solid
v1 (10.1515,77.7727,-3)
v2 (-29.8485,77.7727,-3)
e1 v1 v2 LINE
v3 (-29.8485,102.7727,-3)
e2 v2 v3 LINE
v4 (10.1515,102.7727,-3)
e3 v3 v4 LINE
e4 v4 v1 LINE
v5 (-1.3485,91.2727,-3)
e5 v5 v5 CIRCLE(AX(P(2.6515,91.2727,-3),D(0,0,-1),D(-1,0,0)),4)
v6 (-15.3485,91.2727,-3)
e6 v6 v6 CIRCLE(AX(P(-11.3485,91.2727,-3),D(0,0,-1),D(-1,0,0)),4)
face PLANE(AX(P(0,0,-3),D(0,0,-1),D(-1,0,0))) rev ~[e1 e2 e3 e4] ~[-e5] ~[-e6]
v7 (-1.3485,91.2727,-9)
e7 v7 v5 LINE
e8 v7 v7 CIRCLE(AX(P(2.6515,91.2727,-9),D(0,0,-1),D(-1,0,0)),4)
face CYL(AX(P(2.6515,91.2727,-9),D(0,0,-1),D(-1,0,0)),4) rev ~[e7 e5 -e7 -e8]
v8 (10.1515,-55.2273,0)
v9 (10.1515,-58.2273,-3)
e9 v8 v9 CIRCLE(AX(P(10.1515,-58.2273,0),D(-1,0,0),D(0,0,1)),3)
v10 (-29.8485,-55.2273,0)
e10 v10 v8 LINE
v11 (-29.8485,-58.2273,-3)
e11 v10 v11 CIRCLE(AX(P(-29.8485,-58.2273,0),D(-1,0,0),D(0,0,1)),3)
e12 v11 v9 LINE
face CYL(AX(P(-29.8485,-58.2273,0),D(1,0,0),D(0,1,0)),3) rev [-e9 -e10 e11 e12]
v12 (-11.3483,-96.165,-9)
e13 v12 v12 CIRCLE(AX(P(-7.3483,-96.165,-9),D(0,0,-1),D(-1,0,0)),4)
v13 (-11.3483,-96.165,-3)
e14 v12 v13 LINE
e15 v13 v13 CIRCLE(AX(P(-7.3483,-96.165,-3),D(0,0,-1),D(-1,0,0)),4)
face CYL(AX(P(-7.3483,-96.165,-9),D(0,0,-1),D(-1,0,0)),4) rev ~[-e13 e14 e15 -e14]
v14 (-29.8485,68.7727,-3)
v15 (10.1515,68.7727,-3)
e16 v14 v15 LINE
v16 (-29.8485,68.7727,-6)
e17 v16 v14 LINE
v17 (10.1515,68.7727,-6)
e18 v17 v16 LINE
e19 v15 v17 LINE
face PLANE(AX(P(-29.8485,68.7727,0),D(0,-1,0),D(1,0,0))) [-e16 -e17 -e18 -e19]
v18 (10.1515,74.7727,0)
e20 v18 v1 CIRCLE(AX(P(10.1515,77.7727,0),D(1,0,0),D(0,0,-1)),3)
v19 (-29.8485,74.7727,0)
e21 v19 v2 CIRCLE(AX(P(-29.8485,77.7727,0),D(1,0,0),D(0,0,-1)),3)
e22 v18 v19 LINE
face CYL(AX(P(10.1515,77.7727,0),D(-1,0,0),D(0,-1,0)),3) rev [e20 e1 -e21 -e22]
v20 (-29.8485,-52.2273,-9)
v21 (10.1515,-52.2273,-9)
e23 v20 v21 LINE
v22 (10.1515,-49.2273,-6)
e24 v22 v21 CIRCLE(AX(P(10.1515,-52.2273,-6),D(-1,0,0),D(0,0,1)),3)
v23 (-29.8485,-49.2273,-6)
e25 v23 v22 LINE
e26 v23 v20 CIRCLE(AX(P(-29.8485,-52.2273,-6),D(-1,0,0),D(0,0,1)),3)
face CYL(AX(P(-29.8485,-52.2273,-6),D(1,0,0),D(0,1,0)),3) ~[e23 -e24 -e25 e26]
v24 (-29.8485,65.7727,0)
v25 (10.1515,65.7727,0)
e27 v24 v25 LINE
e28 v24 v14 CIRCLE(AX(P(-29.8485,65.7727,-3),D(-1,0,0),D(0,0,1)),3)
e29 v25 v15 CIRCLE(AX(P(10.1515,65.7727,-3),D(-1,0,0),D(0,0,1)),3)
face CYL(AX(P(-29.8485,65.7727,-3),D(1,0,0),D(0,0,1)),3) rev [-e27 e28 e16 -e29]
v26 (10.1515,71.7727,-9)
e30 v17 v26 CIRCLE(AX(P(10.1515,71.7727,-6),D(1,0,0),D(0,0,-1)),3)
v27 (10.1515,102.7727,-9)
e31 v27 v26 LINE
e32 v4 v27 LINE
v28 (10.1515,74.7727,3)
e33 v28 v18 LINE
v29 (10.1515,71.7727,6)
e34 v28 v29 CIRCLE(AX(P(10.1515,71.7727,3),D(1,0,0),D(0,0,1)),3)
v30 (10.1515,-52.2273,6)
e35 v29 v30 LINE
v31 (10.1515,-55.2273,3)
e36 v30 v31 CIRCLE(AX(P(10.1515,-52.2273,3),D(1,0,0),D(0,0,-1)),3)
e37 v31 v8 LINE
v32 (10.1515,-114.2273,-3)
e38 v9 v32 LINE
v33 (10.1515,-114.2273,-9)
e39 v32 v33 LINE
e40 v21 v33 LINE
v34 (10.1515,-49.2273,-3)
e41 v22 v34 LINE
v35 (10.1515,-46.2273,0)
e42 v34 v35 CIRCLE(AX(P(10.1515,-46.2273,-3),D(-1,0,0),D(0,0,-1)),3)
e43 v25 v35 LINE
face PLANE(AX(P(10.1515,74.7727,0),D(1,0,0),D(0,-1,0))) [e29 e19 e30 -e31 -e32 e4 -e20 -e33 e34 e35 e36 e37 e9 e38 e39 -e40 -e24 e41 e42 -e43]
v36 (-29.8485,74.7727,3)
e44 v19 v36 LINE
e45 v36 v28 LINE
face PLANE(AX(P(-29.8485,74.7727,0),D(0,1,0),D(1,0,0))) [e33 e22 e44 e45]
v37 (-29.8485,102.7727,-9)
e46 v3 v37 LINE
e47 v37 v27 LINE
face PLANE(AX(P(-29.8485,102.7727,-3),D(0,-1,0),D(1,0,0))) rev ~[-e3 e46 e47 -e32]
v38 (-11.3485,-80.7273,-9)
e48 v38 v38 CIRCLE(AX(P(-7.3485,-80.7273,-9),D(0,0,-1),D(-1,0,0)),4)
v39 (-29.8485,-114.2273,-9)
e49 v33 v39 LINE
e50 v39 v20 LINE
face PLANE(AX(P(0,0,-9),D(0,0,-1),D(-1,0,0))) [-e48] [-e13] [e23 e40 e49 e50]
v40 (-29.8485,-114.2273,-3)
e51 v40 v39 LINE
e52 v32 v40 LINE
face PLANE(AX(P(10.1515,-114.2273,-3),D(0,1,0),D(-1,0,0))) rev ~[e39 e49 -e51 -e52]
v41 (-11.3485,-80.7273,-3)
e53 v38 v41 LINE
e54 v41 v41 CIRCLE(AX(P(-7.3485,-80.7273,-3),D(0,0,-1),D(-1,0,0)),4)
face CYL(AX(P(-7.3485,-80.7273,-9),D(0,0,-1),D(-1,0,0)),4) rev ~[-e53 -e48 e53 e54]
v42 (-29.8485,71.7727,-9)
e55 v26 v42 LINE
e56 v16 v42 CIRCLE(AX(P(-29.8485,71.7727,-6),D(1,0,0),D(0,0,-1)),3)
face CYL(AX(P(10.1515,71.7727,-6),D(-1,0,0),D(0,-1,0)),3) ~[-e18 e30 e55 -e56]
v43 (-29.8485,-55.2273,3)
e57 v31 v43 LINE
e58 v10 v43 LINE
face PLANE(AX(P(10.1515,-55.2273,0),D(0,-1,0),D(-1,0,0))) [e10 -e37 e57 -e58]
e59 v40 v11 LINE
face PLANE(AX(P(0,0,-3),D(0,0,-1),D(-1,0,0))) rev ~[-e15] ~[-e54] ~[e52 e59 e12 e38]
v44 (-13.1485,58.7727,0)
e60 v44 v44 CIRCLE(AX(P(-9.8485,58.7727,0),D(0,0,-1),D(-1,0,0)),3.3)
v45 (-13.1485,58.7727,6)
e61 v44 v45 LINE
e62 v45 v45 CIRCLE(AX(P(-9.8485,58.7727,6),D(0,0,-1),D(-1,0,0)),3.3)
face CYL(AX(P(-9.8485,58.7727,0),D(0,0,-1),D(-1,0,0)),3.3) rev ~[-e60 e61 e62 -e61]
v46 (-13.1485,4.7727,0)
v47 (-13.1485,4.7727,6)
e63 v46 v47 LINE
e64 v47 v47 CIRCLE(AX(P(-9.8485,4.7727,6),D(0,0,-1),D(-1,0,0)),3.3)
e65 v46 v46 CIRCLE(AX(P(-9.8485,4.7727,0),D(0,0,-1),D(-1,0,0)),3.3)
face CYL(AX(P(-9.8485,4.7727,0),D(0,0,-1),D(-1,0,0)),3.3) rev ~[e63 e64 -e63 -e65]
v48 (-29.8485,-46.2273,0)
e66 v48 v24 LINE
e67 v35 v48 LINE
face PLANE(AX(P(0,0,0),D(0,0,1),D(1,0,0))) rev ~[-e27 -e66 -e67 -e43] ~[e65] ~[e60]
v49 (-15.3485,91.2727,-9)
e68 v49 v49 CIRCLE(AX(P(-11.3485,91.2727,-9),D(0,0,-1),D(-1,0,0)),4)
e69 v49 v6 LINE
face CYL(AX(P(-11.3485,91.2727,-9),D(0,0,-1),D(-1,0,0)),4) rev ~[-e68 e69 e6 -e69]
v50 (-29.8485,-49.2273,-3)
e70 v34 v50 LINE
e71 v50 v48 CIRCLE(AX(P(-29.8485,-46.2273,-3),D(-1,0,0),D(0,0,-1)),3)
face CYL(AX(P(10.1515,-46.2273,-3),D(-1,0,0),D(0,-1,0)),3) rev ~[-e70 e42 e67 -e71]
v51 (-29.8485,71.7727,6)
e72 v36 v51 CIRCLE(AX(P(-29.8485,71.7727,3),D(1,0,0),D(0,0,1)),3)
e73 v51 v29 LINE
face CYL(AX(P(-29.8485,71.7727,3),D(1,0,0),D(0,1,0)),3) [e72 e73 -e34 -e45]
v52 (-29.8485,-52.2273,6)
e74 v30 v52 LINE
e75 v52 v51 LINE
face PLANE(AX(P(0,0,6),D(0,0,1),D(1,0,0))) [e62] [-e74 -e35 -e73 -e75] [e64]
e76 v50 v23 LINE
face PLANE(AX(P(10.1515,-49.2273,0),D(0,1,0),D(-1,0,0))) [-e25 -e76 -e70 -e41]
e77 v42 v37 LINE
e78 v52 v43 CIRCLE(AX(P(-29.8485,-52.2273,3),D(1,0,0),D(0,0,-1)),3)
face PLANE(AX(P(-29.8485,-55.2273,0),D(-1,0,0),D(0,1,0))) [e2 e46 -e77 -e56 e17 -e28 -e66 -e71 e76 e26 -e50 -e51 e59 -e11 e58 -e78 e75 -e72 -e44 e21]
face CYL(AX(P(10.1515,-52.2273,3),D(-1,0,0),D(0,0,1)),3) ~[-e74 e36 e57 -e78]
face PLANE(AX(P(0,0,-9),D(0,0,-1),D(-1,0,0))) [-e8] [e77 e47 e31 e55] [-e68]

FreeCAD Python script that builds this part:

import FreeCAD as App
import Part
import Sketcher
from FreeCAD import Vector
Q = App.Units.Quantity


def edges_at(feature, points):
    """Names of the edges that pass closest to the given points."""
    edges = feature.Shape.Edges
    near = lambda p: min(range(len(edges)), key=lambda i: edges[i].distToShape(Part.Vertex(*p))[0])
    return sorted({f"Edge{near(p) + 1}" for p in points})

doc = App.newDocument("Part")
body = doc.addObject("PartDesign::Body", "Body")

# Sketch on XY plane
sketch1 = body.newObject("Sketcher::SketchObject", "Sketch")
sketch1.AttachmentSupport = (doc.getObject("XY_Plane"), [""])
sketch1.MapMode = "FlatFace"
sketch1.addGeometry(Part.LineSegment(Vector(10, 75, 0), Vector(-30, 75, 0)), False)
sketch1.addGeometry(Part.LineSegment(Vector(-30, 75, 0), Vector(-30, -55, 0)), False)
sketch1.addGeometry(Part.LineSegment(Vector(-30, -55, 0), Vector(10, -55, 0)), False)
sketch1.addGeometry(Part.LineSegment(Vector(10, -55, 0), Vector(10, 75, 0)), False)
sketch1.addConstraint(Sketcher.Constraint("Coincident", 0, 2, 1, 1))
sketch1.addConstraint(Sketcher.Constraint("Coincident", 1, 2, 2, 1))
sketch1.addConstraint(Sketcher.Constraint("Coincident", 2, 2, 3, 1))
sketch1.addConstraint(Sketcher.Constraint("Coincident", 3, 2, 0, 1))
sketch1.addConstraint(Sketcher.Constraint("Horizontal", 0))
sketch1.addConstraint(Sketcher.Constraint("Vertical", 1))
sketch1.addConstraint(Sketcher.Constraint("Horizontal", 2))
sketch1.addConstraint(Sketcher.Constraint("Vertical", 3))
sketch1.addConstraint(Sketcher.Constraint("DistanceX", 0, 2, 0, 1, Q("40 mm")))
sketch1.addConstraint(Sketcher.Constraint("DistanceY", 1, 2, 1, 1, Q("130 mm")))
sketch1.addConstraint(Sketcher.Constraint("DistanceX", 0, 2, -1, 1, Q("29.8485 mm")))
sketch1.addConstraint(Sketcher.Constraint("DistanceY", -1, 1, 0, 2, Q("74.7727 mm")))
pad1 = body.newObject("PartDesign::Pad", "Pad")
pad1.Profile = sketch1
pad1.Length = 6

# Sketch on XY plane
sketch2 = body.newObject("Sketcher::SketchObject", "Sketch001")
sketch2.AttachmentSupport = (doc.getObject("XY_Plane"), [""])
sketch2.MapMode = "FlatFace"
sketch2.addGeometry(Part.Circle(Vector(-9.8, 58.8, 0), Vector(0, 0, 1), 3.3), False)
sketch2.addGeometry(Part.Circle(Vector(-9.8, 4.8, 0), Vector(0, 0, 1), 3.3), False)
sketch2.addConstraint(Sketcher.Constraint("Equal", 0, 1))
sketch2.addConstraint(Sketcher.Constraint("Vertical", 0, 3, 1, 3))
sketch2.addConstraint(Sketcher.Constraint("Diameter", 0, Q("6.6 mm")))
sketch2.addConstraint(Sketcher.Constraint("DistanceY", 1, 3, 0, 3, Q("54 mm")))
sketch2.addConstraint(Sketcher.Constraint("DistanceX", 0, 3, -1, 1, Q("9.8485 mm")))
sketch2.addConstraint(Sketcher.Constraint("DistanceY", -1, 1, 0, 3, Q("58.7727 mm")))
pocket1 = body.newObject("PartDesign::Pocket", "Pocket")
pocket1.Profile = sketch2
pocket1.Type = "ThroughAll"
pocket1.Reversed = True

# Sketch on XY plane
sketch3 = body.newObject("Sketcher::SketchObject", "Sketch002")
sketch3.AttachmentSupport = (doc.getObject("XY_Plane"), [""])
sketch3.MapMode = "FlatFace"
sketch3.addGeometry(Part.LineSegment(Vector(-30, 75, 0), Vector(10, 75, 0)), False)
sketch3.addGeometry(Part.LineSegment(Vector(10, 75, 0), Vector(10, 69, 0)), False)
sketch3.addGeometry(Part.LineSegment(Vector(10, 69, 0), Vector(-30, 69, 0)), False)
sketch3.addGeometry(Part.LineSegment(Vector(-30, 69, 0), Vector(-30, 75, 0)), False)
sketch3.addGeometry(Part.LineSegment(Vector(-30, -49, 0), Vector(10, -49, 0)), False)
sketch3.addGeometry(Part.LineSegment(Vector(10, -49, 0), Vector(10, -55, 0)), False)
sketch3.addGeometry(Part.LineSegment(Vector(10, -55, 0), Vector(-30, -55, 0)), False)
sketch3.addGeometry(Part.LineSegment(Vector(-30, -55, 0), Vector(-30, -49, 0)), False)
sketch3.addConstraint(Sketcher.Constraint("Coincident", 0, 2, 1, 1))
sketch3.addConstraint(Sketcher.Constraint("Coincident", 1, 2, 2, 1))
sketch3.addConstraint(Sketcher.Constraint("Coincident", 2, 2, 3, 1))
sketch3.addConstraint(Sketcher.Constraint("Coincident", 3, 2, 0, 1))
sketch3.addConstraint(Sketcher.Constraint("Coincident", 4, 2, 5, 1))
sketch3.addConstraint(Sketcher.Constraint("Coincident", 5, 2, 6, 1))
sketch3.addConstraint(Sketcher.Constraint("Coincident", 6, 2, 7, 1))
sketch3.addConstraint(Sketcher.Constraint("Coincident", 7, 2, 4, 1))
sketch3.addConstraint(Sketcher.Constraint("Horizontal", 0))
sketch3.addConstraint(Sketcher.Constraint("Vertical", 1))
sketch3.addConstraint(Sketcher.Constraint("Horizontal", 2))
sketch3.addConstraint(Sketcher.Constraint("Vertical", 3))
sketch3.addConstraint(Sketcher.Constraint("Horizontal", 4))
sketch3.addConstraint(Sketcher.Constraint("Vertical", 5))
sketch3.addConstraint(Sketcher.Constraint("Horizontal", 6))
sketch3.addConstraint(Sketcher.Constraint("Vertical", 7))
sketch3.addConstraint(Sketcher.Constraint("Vertical", 1, 2, 4, 2))
sketch3.addConstraint(Sketcher.Constraint("Vertical", 3, 2, 6, 2))
sketch3.addConstraint(Sketcher.Constraint("Equal", 3, 5))
sketch3.addConstraint(Sketcher.Constraint("DistanceY", 1, 2, 1, 1, Q("6 mm")))
sketch3.addConstraint(Sketcher.Constraint("DistanceX", 0, 1, 0, 2, Q("40 mm")))
sketch3.addConstraint(Sketcher.Constraint("DistanceY", 4, 2, 1, 2, Q("118 mm")))
sketch3.addConstraint(Sketcher.Constraint("DistanceX", -1, 1, 0, 2, Q("10.1515 mm")))
sketch3.addConstraint(Sketcher.Constraint("DistanceY", -1, 1, 0, 2, Q("74.7727 mm")))
pad2 = body.newObject("PartDesign::Pad", "Pad001")
pad2.Profile = sketch3
pad2.Length = 3
pad2.Reversed = True

# Sketch on XY plane
sketch4 = body.newObject("Sketcher::SketchObject", "Sketch003")
sketch4.AttachmentSupport = (doc.getObject("XY_Plane"), [""])
sketch4.MapMode = "FlatFace"
sketch4.AttachmentOffset = App.Placement(Vector(0, 0, -3), App.Rotation())
sketch4.addGeometry(Part.LineSegment(Vector(10, 103, 0), Vector(10, 69, 0)), False)
sketch4.addGeometry(Part.LineSegment(Vector(10, 69, 0), Vector(-30, 69, 0)), False)
sketch4.addGeometry(Part.LineSegment(Vector(-30, 69, 0), Vector(-30, 103, 0)), False)
sketch4.addGeometry(Part.LineSegment(Vector(-30, 103, 0), Vector(10, 103, 0)), False)
sketch4.addGeometry(Part.LineSegment(Vector(-30, -114, 0), Vector(-30, -49, 0)), False)
sketch4.addGeometry(Part.LineSegment(Vector(-30, -49, 0), Vector(10, -49, 0)), False)
sketch4.addGeometry(Part.LineSegment(Vector(10, -49, 0), Vector(10, -114, 0)), False)
sketch4.addGeometry(Part.LineSegment(Vector(10, -114, 0), Vector(-30, -114, 0)), False)
sketch4.addConstraint(Sketcher.Constraint("Coincident", 0, 2, 1, 1))
sketch4.addConstraint(Sketcher.Constraint("Coincident", 1, 2, 2, 1))
sketch4.addConstraint(Sketcher.Constraint("Coincident", 2, 2, 3, 1))
sketch4.addConstraint(Sketcher.Constraint("Coincident", 3, 2, 0, 1))
sketch4.addConstraint(Sketcher.Constraint("Coincident", 4, 2, 5, 1))
sketch4.addConstraint(Sketcher.Constraint("Coincident", 5, 2, 6, 1))
sketch4.addConstraint(Sketcher.Constraint("Coincident", 6, 2, 7, 1))
sketch4.addConstraint(Sketcher.Constraint("Coincident", 7, 2, 4, 1))
sketch4.addConstraint(Sketcher.Constraint("Vertical", 0))
sketch4.addConstraint(Sketcher.Constraint("Horizontal", 1))
sketch4.addConstraint(Sketcher.Constraint("Vertical", 2))
sketch4.addConstraint(Sketcher.Constraint("Horizontal", 3))
sketch4.addConstraint(Sketcher.Constraint("Vertical", 4))
sketch4.addConstraint(Sketcher.Constraint("Horizontal", 5))
sketch4.addConstraint(Sketcher.Constraint("Vertical", 6))
sketch4.addConstraint(Sketcher.Constraint("Horizontal", 7))
sketch4.addConstraint(Sketcher.Constraint("Vertical", 2, 2, 4, 2))
sketch4.addConstraint(Sketcher.Constraint("Vertical", 3, 2, 5, 2))
sketch4.addConstraint(Sketcher.Constraint("DistanceX", 1, 2, 1, 1, Q("40 mm")))
sketch4.addConstraint(Sketcher.Constraint("DistanceY", 0, 2, 0, 1, Q("34 mm")))
sketch4.addConstraint(Sketcher.Constraint("DistanceY", 4, 1, 4, 2, Q("65 mm")))
sketch4.addConstraint(Sketcher.Constraint("DistanceY", 4, 2, 1, 2, Q("118 mm")))
sketch4.addConstraint(Sketcher.Constraint("DistanceX", -1, 1, 0, 2, Q("10.1515 mm")))
sketch4.addConstraint(Sketcher.Constraint("DistanceY", -1, 1, 0, 2, Q("68.7727 mm")))
pad3 = body.newObject("PartDesign::Pad", "Pad002")
pad3.Profile = sketch4
pad3.Length = 6
pad3.Reversed = True
doc.recompute()

fillet = body.newObject("PartDesign::Fillet", "Fillet")
fillet.Base = (pad3, edges_at(pad3, [
    (-9.848, 68.773, 0),
    (-9.848, 68.773, -9),
    (-9.848, 74.773, -3),
    (-9.848, 74.773, 6),
    (-9.848, -49.227, 0),
    (-9.848, -49.227, -9),
    (-9.848, -55.227, -3),
    (-9.848, -55.227, 6),
]))
fillet.Radius = 3

# Sketch on XY plane
sketch5 = body.newObject("Sketcher::SketchObject", "Sketch004")
sketch5.AttachmentSupport = (doc.getObject("XY_Plane"), [""])
sketch5.MapMode = "FlatFace"
sketch5.AttachmentOffset = App.Placement(Vector(0, 0, -9), App.Rotation())
sketch5.addGeometry(Part.Circle(Vector(-11.3, 91.3, 0), Vector(0, 0, 1), 4), False)
sketch5.addGeometry(Part.Circle(Vector(2.7, 91.3, 0), Vector(0, 0, 1), 4), False)
sketch5.addGeometry(Part.Circle(Vector(-7.3, -80.7, 0), Vector(0, 0, 1), 4), False)
sketch5.addGeometry(Part.Circle(Vector(-7.3, -96.2, 0), Vector(0, 0, 1), 4), False)
sketch5.addConstraint(Sketcher.Constraint("Equal", 0, 1))
sketch5.addConstraint(Sketcher.Constraint("Equal", 1, 2))
sketch5.addConstraint(Sketcher.Constraint("Equal", 2, 3))
sketch5.addConstraint(Sketcher.Constraint("Horizontal", 0, 3, 1, 3))
sketch5.addConstraint(Sketcher.Constraint("Vertical", 2, 3, 3, 3))
sketch5.addConstraint(Sketcher.Constraint("Diameter", 0, Q("8 mm")))
sketch5.addConstraint(Sketcher.Constraint("DistanceX", 0, 3, 1, 3, Q("14 mm")))
sketch5.addConstraint(Sketcher.Constraint("DistanceX", 0, 3, 2, 3, Q("4 mm")))
sketch5.addConstraint(Sketcher.Constraint("DistanceY", 2, 3, 0, 3, Q("172 mm")))
sketch5.addConstraint(Sketcher.Constraint("DistanceY", 3, 3, -1, 1, Q("96.165 mm")))
sketch5.addConstraint(Sketcher.Constraint("DistanceX", 0, 3, -1, 1, Q("11.3485 mm")))
sketch5.addConstraint(Sketcher.Constraint("DistanceY", -1, 1, 0, 3, Q("91.2727 mm")))
pocket2 = body.newObject("PartDesign::Pocket", "Pocket001")
pocket2.Profile = sketch5
pocket2.Type = "ThroughAll"
pocket2.Reversed = True

doc.recompute()
